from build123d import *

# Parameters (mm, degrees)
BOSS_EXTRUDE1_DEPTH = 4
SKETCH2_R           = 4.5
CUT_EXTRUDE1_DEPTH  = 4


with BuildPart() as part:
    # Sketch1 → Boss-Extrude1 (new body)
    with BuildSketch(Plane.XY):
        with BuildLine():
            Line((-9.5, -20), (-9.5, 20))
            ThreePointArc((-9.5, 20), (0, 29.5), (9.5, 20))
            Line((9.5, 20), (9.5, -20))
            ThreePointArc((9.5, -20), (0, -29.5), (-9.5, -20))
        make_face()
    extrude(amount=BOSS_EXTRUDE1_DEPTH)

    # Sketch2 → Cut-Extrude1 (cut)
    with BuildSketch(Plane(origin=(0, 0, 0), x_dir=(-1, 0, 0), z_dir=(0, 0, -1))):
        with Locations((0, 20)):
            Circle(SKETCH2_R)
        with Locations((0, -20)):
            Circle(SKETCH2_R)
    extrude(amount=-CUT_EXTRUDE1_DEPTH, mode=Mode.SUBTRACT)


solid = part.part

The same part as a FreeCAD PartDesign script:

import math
import FreeCAD as App
import Part
import Sketcher
from FreeCAD import Vector

doc = App.newDocument("Part")
body = doc.addObject("PartDesign::Body", "Body")

# Sketch on XY plane
sketch1 = body.newObject("Sketcher::SketchObject", "Sketch")
sketch1.AttachmentSupport = (doc.getObject("XY_Plane"), [""])
sketch1.MapMode = "FlatFace"
sketch1.addGeometry([
    Part.LineSegment(Vector(-10, 20, 0), Vector(-10, -20, 0)),
    Part.ArcOfCircle(Part.Circle(Vector(0, -20, 0), Vector(0, 0, 1), 10), math.radians(180), math.radians(360)),
    Part.LineSegment(Vector(10, -20, 0), Vector(10, 20, 0)),
    Part.ArcOfCircle(Part.Circle(Vector(0, 20, 0), Vector(0, 0, 1), 10), math.radians(0), math.radians(180)),
], False)
sketch1.addConstraint([
    Sketcher.Constraint("Tangent", 0, 2, 1, 1),
    Sketcher.Constraint("Tangent", 1, 2, 2, 1),
    Sketcher.Constraint("Tangent", 2, 2, 3, 1),
    Sketcher.Constraint("Tangent", 3, 2, 0, 1),
    Sketcher.Constraint("Vertical", 0),
    Sketcher.Constraint("Vertical", 2),
    Sketcher.Constraint("Symmetric", 1, 3, 3, 3, -1, 1),
    Sketcher.Constraint("Radius", 1, 9.5),
    Sketcher.Constraint("DistanceY", 0, 2, 0, 1, 40.0),
])
pad1 = body.newObject("PartDesign::Pad", "Pad")
pad1.Profile = sketch1
pad1.Length = 4

# Sketch on XY plane
sketch2 = body.newObject("Sketcher::SketchObject", "Sketch001")
sketch2.AttachmentSupport = (doc.getObject("XY_Plane"), [""])
sketch2.MapMode = "FlatFace"
sketch2.addGeometry([
    Part.Circle(Vector(0, 20, 0), Vector(0, 0, 1), 4.5),
    Part.Circle(Vector(0, -20, 0), Vector(0, 0, 1), 4.5),
], False)
sketch2.addConstraint([
    Sketcher.Constraint("Equal", 0, 1),
    Sketcher.Constraint("Symmetric", 0, 3, 1, 3, -1, 1),
    Sketcher.Constraint("PointOnObject", 0, 3, -2),
    Sketcher.Constraint("Diameter", 0, 9.0),
    Sketcher.Constraint("DistanceY", -1, 1, 0, 3, 20.0),
])
pocket1 = body.newObject("PartDesign::Pocket", "Pocket")
pocket1.Profile = sketch2
pocket1.Length = 4
pocket1.Reversed = True

doc.recompute()
